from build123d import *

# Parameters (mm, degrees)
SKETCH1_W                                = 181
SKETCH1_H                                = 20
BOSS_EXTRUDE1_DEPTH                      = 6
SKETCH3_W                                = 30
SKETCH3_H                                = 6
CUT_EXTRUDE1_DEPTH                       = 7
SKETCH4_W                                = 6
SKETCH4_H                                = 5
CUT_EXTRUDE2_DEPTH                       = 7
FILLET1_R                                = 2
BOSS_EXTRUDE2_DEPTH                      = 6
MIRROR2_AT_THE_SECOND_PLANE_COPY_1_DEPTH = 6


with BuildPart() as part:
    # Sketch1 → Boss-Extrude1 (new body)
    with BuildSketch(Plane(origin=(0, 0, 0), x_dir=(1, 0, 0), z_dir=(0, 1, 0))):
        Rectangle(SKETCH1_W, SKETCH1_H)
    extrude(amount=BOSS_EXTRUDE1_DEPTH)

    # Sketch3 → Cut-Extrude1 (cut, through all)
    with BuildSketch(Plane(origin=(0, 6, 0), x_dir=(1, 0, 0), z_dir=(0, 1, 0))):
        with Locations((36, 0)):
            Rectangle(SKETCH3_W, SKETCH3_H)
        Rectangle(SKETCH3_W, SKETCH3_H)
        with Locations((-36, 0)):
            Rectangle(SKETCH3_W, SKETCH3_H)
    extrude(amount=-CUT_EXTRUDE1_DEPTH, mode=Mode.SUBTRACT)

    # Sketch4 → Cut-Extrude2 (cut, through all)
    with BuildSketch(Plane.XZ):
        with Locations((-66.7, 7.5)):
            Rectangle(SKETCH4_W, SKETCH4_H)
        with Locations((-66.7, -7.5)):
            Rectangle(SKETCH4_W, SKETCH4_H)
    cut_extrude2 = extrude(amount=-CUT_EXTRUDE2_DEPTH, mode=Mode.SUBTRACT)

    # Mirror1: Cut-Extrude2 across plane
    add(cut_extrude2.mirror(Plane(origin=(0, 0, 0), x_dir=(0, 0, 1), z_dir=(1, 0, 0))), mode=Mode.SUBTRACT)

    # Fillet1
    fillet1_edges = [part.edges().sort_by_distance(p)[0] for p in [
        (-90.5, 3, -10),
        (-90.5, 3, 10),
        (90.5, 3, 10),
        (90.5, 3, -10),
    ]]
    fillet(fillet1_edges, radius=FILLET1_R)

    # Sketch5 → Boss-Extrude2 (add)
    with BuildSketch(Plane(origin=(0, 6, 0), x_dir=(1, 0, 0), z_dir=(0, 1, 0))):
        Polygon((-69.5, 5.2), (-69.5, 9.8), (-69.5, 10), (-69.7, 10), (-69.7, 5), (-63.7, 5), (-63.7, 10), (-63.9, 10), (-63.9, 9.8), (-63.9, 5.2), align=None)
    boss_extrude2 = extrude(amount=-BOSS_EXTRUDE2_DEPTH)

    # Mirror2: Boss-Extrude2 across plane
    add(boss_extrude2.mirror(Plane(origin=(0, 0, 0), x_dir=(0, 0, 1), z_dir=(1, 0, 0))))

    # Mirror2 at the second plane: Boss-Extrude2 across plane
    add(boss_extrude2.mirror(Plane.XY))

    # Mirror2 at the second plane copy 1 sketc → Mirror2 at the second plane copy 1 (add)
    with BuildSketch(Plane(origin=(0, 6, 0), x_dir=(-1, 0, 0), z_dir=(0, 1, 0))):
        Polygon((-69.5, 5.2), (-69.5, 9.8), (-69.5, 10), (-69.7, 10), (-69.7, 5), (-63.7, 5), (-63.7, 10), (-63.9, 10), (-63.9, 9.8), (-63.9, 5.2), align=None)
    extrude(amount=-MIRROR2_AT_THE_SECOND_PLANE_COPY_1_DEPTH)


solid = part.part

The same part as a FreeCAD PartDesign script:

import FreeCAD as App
import Part
import Sketcher

V = App.Vector
Q = App.Units.Quantity


def edges_at(feature, points):
    """Names of the edges that pass closest to the given points."""
    edges = feature.Shape.Edges
    near = lambda p: min(range(len(edges)), key=lambda i: edges[i].distToShape(Part.Vertex(*p))[0])
    return sorted({f"Edge{near(p) + 1}" for p in points})

doc = App.newDocument("Part")
params = doc.addObject("Spreadsheet::Sheet", "Params")
for row, (alias, value) in enumerate([
    ("sketch1_width", "181 mm"),
    ("sketch1_height", "20 mm"),
    ("pad1_length", "6 mm"),
    ("sketch2_width", "30 mm"),
    ("sketch2_height", "6 mm"),
    ("sketch3_width", "6 mm"),
    ("sketch3_height", "5 mm"),
    ("fillet_radius", "2 mm"),
    ("sketch4_width", "6 mm"),
    ("sketch4_height", "5 mm"),
    ("sketch4_width2", "0.2 mm"),
    ("sketch4_height2", "4.8 mm"),
    ("pad2_length", "6 mm"),
    ("sketch5_width", "6 mm"),
    ("sketch5_height", "5 mm"),
    ("sketch5_width2", "0.2 mm"),
    ("sketch5_height2", "4.8 mm"),
    ("pad3_length", "6 mm"),
], start=1):
    params.set(f"A{row}", alias)
    params.set(f"B{row}", "=" + value)
    params.setAlias(f"B{row}", alias)

body = doc.addObject("PartDesign::Body", "Body")

sketch1 = doc.addObject("Sketcher::SketchObject", "Sketch")
body.addObject(sketch1)
sketch1.AttachmentSupport = (doc.XZ_Plane, [""])
sketch1.MapMode = "FlatFace"
sketch1.addGeometry([
    Part.LineSegment(V(-90, -10, 0), V(-90, 10, 0)),
    Part.LineSegment(V(-90, 10, 0), V(90, 10, 0)),
    Part.LineSegment(V(90, 10, 0), V(90, -10, 0)),
    Part.LineSegment(V(90, -10, 0), V(-90, -10, 0)),
], False)
sketch1.addConstraint([
    Sketcher.Constraint("Coincident", 0, 2, 1, 1),
    Sketcher.Constraint("Coincident", 1, 2, 2, 1),
    Sketcher.Constraint("Coincident", 2, 2, 3, 1),
    Sketcher.Constraint("Coincident", 3, 2, 0, 1),
    Sketcher.Constraint("Vertical", 0),
    Sketcher.Constraint("Horizontal", 1),
    Sketcher.Constraint("Vertical", 2),
    Sketcher.Constraint("Horizontal", 3),
    Sketcher.Constraint("Symmetric", 0, 2, 2, 2, -1, 1),
    Sketcher.Constraint("DistanceX", 1, 1, 1, 2, Q("181 mm")),
    Sketcher.Constraint("DistanceY", 0, 1, 0, 2, Q("20 mm")),
])
sketch1.setExpression("Constraints[9]", "Params.sketch1_width")
sketch1.setExpression("Constraints[10]", "Params.sketch1_height")
pad1 = doc.addObject("PartDesign::Pad", "Pad")
body.addObject(pad1)
pad1.Profile = sketch1
pad1.setExpression("Length", "Params.pad1_length")
pad1.Reversed = True

sketch2 = doc.addObject("Sketcher::SketchObject", "Sketch001")
body.addObject(sketch2)
sketch2.AttachmentSupport = (doc.XZ_Plane, [""])
sketch2.MapMode = "FlatFace"
sketch2.AttachmentOffset = App.Placement(V(0, 0, -6), App.Rotation())
sketch2.addGeometry([
    Part.LineSegment(V(21, -3, 0), V(21, 3, 0)),
    Part.LineSegment(V(21, 3, 0), V(51, 3, 0)),
    Part.LineSegment(V(51, 3, 0), V(51, -3, 0)),
    Part.LineSegment(V(51, -3, 0), V(21, -3, 0)),
    Part.LineSegment(V(-15, -3, 0), V(-15, 3, 0)),
    Part.LineSegment(V(-15, 3, 0), V(15, 3, 0)),
    Part.LineSegment(V(15, 3, 0), V(15, -3, 0)),
    Part.LineSegment(V(15, -3, 0), V(-15, -3, 0)),
    Part.LineSegment(V(-51, -3, 0), V(-51, 3, 0)),
    Part.LineSegment(V(-51, 3, 0), V(-21, 3, 0)),
    Part.LineSegment(V(-21, 3, 0), V(-21, -3, 0)),
    Part.LineSegment(V(-21, -3, 0), V(-51, -3, 0)),
], False)
sketch2.addConstraint([
    Sketcher.Constraint("Coincident", 0, 2, 1, 1),
    Sketcher.Constraint("Coincident", 1, 2, 2, 1),
    Sketcher.Constraint("Coincident", 2, 2, 3, 1),
    Sketcher.Constraint("Coincident", 3, 2, 0, 1),
    Sketcher.Constraint("Coincident", 4, 2, 5, 1),
    Sketcher.Constraint("Coincident", 5, 2, 6, 1),
    Sketcher.Constraint("Coincident", 6, 2, 7, 1),
    Sketcher.Constraint("Coincident", 7, 2, 4, 1),
    Sketcher.Constraint("Coincident", 8, 2, 9, 1),
    Sketcher.Constraint("Coincident", 9, 2, 10, 1),
    Sketcher.Constraint("Coincident", 10, 2, 11, 1),
    Sketcher.Constraint("Coincident", 11, 2, 8, 1),
    Sketcher.Constraint("Vertical", 0),
    Sketcher.Constraint("Horizontal", 1),
    Sketcher.Constraint("Vertical", 2),
    Sketcher.Constraint("Horizontal", 3),
    Sketcher.Constraint("Vertical", 4),
    Sketcher.Constraint("Horizontal", 5),
    Sketcher.Constraint("Vertical", 6),
    Sketcher.Constraint("Horizontal", 7),
    Sketcher.Constraint("Vertical", 8),
    Sketcher.Constraint("Horizontal", 9),
    Sketcher.Constraint("Vertical", 10),
    Sketcher.Constraint("Horizontal", 11),
    Sketcher.Constraint("Symmetric", 4, 2, 6, 2, -1, 1),
    Sketcher.Constraint("Symmetric", 2, 2, 8, 2, -1, 1),
    Sketcher.Constraint("Symmetric", 0, 2, 10, 2, -1, 1),
    Sketcher.Constraint("Horizontal", 1, 2, 4, 2),
    Sketcher.Constraint("Horizontal", 3, 2, 6, 2),
    Sketcher.Constraint("Equal", 3, 5),
    Sketcher.Constraint("DistanceX", 1, 1, 1, 2, Q("30 mm")),
    Sketcher.Constraint("DistanceY", 0, 1, 0, 2, Q("6 mm")),
    Sketcher.Constraint("DistanceX", -1, 1, 0, 2, Q("21 mm")),
])
sketch2.setExpression("Constraints[30]", "Params.sketch2_width")
sketch2.setExpression("Constraints[31]", "Params.sketch2_height")
pocket1 = doc.addObject("PartDesign::Pocket", "Pocket")
body.addObject(pocket1)
pocket1.Profile = sketch2
pocket1.Type = "ThroughAll"
pocket1.Reversed = True

sketch3 = doc.addObject("Sketcher::SketchObject", "Sketch002")
body.addObject(sketch3)
sketch3.AttachmentSupport = (doc.XZ_Plane, [""])
sketch3.MapMode = "FlatFace"
sketch3.addGeometry([
    Part.LineSegment(V(-70, 10, 0), V(-70, 5, 0)),
    Part.LineSegment(V(-70, 5, 0), V(-64, 5, 0)),
    Part.LineSegment(V(-64, 5, 0), V(-64, 10, 0)),
    Part.LineSegment(V(-64, 10, 0), V(-70, 10, 0)),
    Part.LineSegment(V(-70, -5, 0), V(-70, -10, 0)),
    Part.LineSegment(V(-70, -10, 0), V(-64, -10, 0)),
    Part.LineSegment(V(-64, -10, 0), V(-64, -5, 0)),
    Part.LineSegment(V(-64, -5, 0), V(-70, -5, 0)),
], False)
sketch3.addConstraint([
    Sketcher.Constraint("Coincident", 0, 2, 1, 1),
    Sketcher.Constraint("Coincident", 1, 2, 2, 1),
    Sketcher.Constraint("Coincident", 2, 2, 3, 1),
    Sketcher.Constraint("Coincident", 3, 2, 0, 1),
    Sketcher.Constraint("Coincident", 4, 2, 5, 1),
    Sketcher.Constraint("Coincident", 5, 2, 6, 1),
    Sketcher.Constraint("Coincident", 6, 2, 7, 1),
    Sketcher.Constraint("Coincident", 7, 2, 4, 1),
    Sketcher.Constraint("Vertical", 0),
    Sketcher.Constraint("Horizontal", 1),
    Sketcher.Constraint("Vertical", 2),
    Sketcher.Constraint("Horizontal", 3),
    Sketcher.Constraint("Vertical", 4),
    Sketcher.Constraint("Horizontal", 5),
    Sketcher.Constraint("Vertical", 6),
    Sketcher.Constraint("Horizontal", 7),
    Sketcher.Constraint("Symmetric", 3, 2, 4, 2, -1),
    Sketcher.Constraint("Symmetric", 1, 2, 6, 2, -1),
    Sketcher.Constraint("DistanceX", 1, 1, 1, 2, Q("6 mm")),
    Sketcher.Constraint("DistanceY", 0, 2, 0, 1, Q("5 mm")),
    Sketcher.Constraint("DistanceY", -1, 1, 0, 2, Q("5 mm")),
    Sketcher.Constraint("DistanceX", 0, 2, -1, 1, Q("69.7 mm")),
])
sketch3.setExpression("Constraints[18]", "Params.sketch3_width")
sketch3.setExpression("Constraints[19]", "Params.sketch3_height")
pocket2 = doc.addObject("PartDesign::Pocket", "Pocket001")
body.addObject(pocket2)
pocket2.Profile = sketch3
pocket2.Type = "ThroughAll"
doc.recompute()

mirrored = doc.addObject("PartDesign::Mirrored", "Mirrored")
body.addObject(mirrored)
mirrored.Originals = [pocket2]
mirrored.MirrorPlane = (doc.YZ_Plane, [""])
body.Tip = mirrored
doc.recompute()

fillet = doc.addObject("PartDesign::Fillet", "Fillet")
body.addObject(fillet)
fillet.Base = (mirrored, edges_at(mirrored, [
    (-90.5, 3, -10),
    (-90.5, 3, 10),
    (90.5, 3, 10),
    (90.5, 3, -10),
]))
fillet.setExpression("Radius", "Params.fillet_radius")

sketch4 = doc.addObject("Sketcher::SketchObject", "Sketch003")
body.addObject(sketch4)
sketch4.AttachmentSupport = (doc.XZ_Plane, [""])
sketch4.MapMode = "FlatFace"
sketch4.AttachmentOffset = App.Placement(V(0, 0, -6), App.Rotation())
sketch4.addGeometry([
    Part.LineSegment(V(-69.5, -5.2, 0), V(-69.5, -10, 0)),
    Part.LineSegment(V(-69.5, -10, 0), V(-69.7, -10, 0)),
    Part.LineSegment(V(-69.7, -10, 0), V(-69.7, -5, 0)),
    Part.LineSegment(V(-69.7, -5, 0), V(-63.7, -5, 0)),
    Part.LineSegment(V(-63.7, -5, 0), V(-63.7, -10, 0)),
    Part.LineSegment(V(-63.7, -10, 0), V(-63.9, -10, 0)),
    Part.LineSegment(V(-63.9, -10, 0), V(-63.9, -5.2, 0)),
    Part.LineSegment(V(-63.9, -5.2, 0), V(-69.5, -5.2, 0)),
], False)
sketch4.addConstraint([
    Sketcher.Constraint("Coincident", 0, 2, 1, 1),
    Sketcher.Constraint("Coincident", 1, 2, 2, 1),
    Sketcher.Constraint("Coincident", 2, 2, 3, 1),
    Sketcher.Constraint("Coincident", 3, 2, 4, 1),
    Sketcher.Constraint("Coincident", 4, 2, 5, 1),
    Sketcher.Constraint("Coincident", 5, 2, 6, 1),
    Sketcher.Constraint("Coincident", 6, 2, 7, 1),
    Sketcher.Constraint("Coincident", 7, 2, 0, 1),
    Sketcher.Constraint("Vertical", 0),
    Sketcher.Constraint("Horizontal", 1),
    Sketcher.Constraint("Vertical", 2),
    Sketcher.Constraint("Horizontal", 3),
    Sketcher.Constraint("Vertical", 4),
    Sketcher.Constraint("Horizontal", 5),
    Sketcher.Constraint("Vertical", 6),
    Sketcher.Constraint("Horizontal", 7),
    Sketcher.Constraint("Horizontal", 1, 2, 4, 2),
    Sketcher.Constraint("Equal", 1, 5),
    Sketcher.Constraint("DistanceX", 3, 1, 3, 2, Q("6 mm")),
    Sketcher.Constraint("DistanceY", 2, 1, 2, 2, Q("5 mm")),
    Sketcher.Constraint("DistanceX", 1, 2, 1, 1, Q("0.2 mm")),
    Sketcher.Constraint("DistanceY", 0, 2, 0, 1, Q("4.8 mm")),
    Sketcher.Constraint("DistanceY", 0, 2, -1, 1, Q("10 mm")),
    Sketcher.Constraint("DistanceX", 0, 2, -1, 1, Q("69.5 mm")),
])
sketch4.setExpression("Constraints[18]", "Params.sketch4_width")
sketch4.setExpression("Constraints[19]", "Params.sketch4_height")
sketch4.setExpression("Constraints[20]", "Params.sketch4_width2")
sketch4.setExpression("Constraints[21]", "Params.sketch4_height2")
pad2 = doc.addObject("PartDesign::Pad", "Pad001")
body.addObject(pad2)
pad2.Profile = sketch4
pad2.setExpression("Length", "Params.pad2_length")
doc.recompute()

mirrored2 = doc.addObject("PartDesign::Mirrored", "Mirrored001")
body.addObject(mirrored2)
mirrored2.Originals = [pad2]
mirrored2.MirrorPlane = (doc.YZ_Plane, [""])
body.Tip = mirrored2
doc.recompute()

mirrored3 = doc.addObject("PartDesign::Mirrored", "Mirrored002")
body.addObject(mirrored3)
mirrored3.Originals = [pad2]
mirrored3.MirrorPlane = (doc.XY_Plane, [""])
body.Tip = mirrored3

sketch5 = doc.addObject("Sketcher::SketchObject", "Sketch004")
body.addObject(sketch5)
sketch5.AttachmentSupport = (doc.XZ_Plane, [""])
sketch5.MapMode = "FlatFace"
sketch5.AttachmentOffset = App.Placement(V(0, 0, -6), App.Rotation())
sketch5.addGeometry([
    Part.LineSegment(V(69.5, 5.2, 0), V(69.5, 10, 0)),
    Part.LineSegment(V(69.5, 10, 0), V(69.7, 10, 0)),
    Part.LineSegment(V(69.7, 10, 0), V(69.7, 5, 0)),
    Part.LineSegment(V(69.7, 5, 0), V(63.7, 5, 0)),
    Part.LineSegment(V(63.7, 5, 0), V(63.7, 10, 0)),
    Part.LineSegment(V(63.7, 10, 0), V(63.9, 10, 0)),
    Part.LineSegment(V(63.9, 10, 0), V(63.9, 5.2, 0)),
    Part.LineSegment(V(63.9, 5.2, 0), V(69.5, 5.2, 0)),
], False)
sketch5.addConstraint([
    Sketcher.Constraint("Coincident", 0, 2, 1, 1),
    Sketcher.Constraint("Coincident", 1, 2, 2, 1),
    Sketcher.Constraint("Coincident", 2, 2, 3, 1),
    Sketcher.Constraint("Coincident", 3, 2, 4, 1),
    Sketcher.Constraint("Coincident", 4, 2, 5, 1),
    Sketcher.Constraint("Coincident", 5, 2, 6, 1),
    Sketcher.Constraint("Coincident", 6, 2, 7, 1),
    Sketcher.Constraint("Coincident", 7, 2, 0, 1),
    Sketcher.Constraint("Vertical", 0),
    Sketcher.Constraint("Horizontal", 1),
    Sketcher.Constraint("Vertical", 2),
    Sketcher.Constraint("Horizontal", 3),
    Sketcher.Constraint("Vertical", 4),
    Sketcher.Constraint("Horizontal", 5),
    Sketcher.Constraint("Vertical", 6),
    Sketcher.Constraint("Horizontal", 7),
    Sketcher.Constraint("Horizontal", 1, 2, 4, 2),
    Sketcher.Constraint("Equal", 1, 5),
    Sketcher.Constraint("DistanceX", 3, 2, 3, 1, Q("6 mm")),
    Sketcher.Constraint("DistanceY", 2, 2, 2, 1, Q("5 mm")),
    Sketcher.Constraint("DistanceX", 1, 1, 1, 2, Q("0.2 mm")),
    Sketcher.Constraint("DistanceY", 0, 1, 0, 2, Q("4.8 mm")),
    Sketcher.Constraint("DistanceY", -1, 1, 0, 2, Q("10 mm")),
    Sketcher.Constraint("DistanceX", -1, 1, 0, 2, Q("69.5 mm")),
])
sketch5.setExpression("Constraints[18]", "Params.sketch5_width")
sketch5.setExpression("Constraints[19]", "Params.sketch5_height")
sketch5.setExpression("Constraints[20]", "Params.sketch5_width2")
sketch5.setExpression("Constraints[21]", "Params.sketch5_height2")
pad3 = doc.addObject("PartDesign::Pad", "Pad002")
body.addObject(pad3)
pad3.Profile = sketch5
pad3.setExpression("Length", "Params.pad3_length")

doc.recompute()
